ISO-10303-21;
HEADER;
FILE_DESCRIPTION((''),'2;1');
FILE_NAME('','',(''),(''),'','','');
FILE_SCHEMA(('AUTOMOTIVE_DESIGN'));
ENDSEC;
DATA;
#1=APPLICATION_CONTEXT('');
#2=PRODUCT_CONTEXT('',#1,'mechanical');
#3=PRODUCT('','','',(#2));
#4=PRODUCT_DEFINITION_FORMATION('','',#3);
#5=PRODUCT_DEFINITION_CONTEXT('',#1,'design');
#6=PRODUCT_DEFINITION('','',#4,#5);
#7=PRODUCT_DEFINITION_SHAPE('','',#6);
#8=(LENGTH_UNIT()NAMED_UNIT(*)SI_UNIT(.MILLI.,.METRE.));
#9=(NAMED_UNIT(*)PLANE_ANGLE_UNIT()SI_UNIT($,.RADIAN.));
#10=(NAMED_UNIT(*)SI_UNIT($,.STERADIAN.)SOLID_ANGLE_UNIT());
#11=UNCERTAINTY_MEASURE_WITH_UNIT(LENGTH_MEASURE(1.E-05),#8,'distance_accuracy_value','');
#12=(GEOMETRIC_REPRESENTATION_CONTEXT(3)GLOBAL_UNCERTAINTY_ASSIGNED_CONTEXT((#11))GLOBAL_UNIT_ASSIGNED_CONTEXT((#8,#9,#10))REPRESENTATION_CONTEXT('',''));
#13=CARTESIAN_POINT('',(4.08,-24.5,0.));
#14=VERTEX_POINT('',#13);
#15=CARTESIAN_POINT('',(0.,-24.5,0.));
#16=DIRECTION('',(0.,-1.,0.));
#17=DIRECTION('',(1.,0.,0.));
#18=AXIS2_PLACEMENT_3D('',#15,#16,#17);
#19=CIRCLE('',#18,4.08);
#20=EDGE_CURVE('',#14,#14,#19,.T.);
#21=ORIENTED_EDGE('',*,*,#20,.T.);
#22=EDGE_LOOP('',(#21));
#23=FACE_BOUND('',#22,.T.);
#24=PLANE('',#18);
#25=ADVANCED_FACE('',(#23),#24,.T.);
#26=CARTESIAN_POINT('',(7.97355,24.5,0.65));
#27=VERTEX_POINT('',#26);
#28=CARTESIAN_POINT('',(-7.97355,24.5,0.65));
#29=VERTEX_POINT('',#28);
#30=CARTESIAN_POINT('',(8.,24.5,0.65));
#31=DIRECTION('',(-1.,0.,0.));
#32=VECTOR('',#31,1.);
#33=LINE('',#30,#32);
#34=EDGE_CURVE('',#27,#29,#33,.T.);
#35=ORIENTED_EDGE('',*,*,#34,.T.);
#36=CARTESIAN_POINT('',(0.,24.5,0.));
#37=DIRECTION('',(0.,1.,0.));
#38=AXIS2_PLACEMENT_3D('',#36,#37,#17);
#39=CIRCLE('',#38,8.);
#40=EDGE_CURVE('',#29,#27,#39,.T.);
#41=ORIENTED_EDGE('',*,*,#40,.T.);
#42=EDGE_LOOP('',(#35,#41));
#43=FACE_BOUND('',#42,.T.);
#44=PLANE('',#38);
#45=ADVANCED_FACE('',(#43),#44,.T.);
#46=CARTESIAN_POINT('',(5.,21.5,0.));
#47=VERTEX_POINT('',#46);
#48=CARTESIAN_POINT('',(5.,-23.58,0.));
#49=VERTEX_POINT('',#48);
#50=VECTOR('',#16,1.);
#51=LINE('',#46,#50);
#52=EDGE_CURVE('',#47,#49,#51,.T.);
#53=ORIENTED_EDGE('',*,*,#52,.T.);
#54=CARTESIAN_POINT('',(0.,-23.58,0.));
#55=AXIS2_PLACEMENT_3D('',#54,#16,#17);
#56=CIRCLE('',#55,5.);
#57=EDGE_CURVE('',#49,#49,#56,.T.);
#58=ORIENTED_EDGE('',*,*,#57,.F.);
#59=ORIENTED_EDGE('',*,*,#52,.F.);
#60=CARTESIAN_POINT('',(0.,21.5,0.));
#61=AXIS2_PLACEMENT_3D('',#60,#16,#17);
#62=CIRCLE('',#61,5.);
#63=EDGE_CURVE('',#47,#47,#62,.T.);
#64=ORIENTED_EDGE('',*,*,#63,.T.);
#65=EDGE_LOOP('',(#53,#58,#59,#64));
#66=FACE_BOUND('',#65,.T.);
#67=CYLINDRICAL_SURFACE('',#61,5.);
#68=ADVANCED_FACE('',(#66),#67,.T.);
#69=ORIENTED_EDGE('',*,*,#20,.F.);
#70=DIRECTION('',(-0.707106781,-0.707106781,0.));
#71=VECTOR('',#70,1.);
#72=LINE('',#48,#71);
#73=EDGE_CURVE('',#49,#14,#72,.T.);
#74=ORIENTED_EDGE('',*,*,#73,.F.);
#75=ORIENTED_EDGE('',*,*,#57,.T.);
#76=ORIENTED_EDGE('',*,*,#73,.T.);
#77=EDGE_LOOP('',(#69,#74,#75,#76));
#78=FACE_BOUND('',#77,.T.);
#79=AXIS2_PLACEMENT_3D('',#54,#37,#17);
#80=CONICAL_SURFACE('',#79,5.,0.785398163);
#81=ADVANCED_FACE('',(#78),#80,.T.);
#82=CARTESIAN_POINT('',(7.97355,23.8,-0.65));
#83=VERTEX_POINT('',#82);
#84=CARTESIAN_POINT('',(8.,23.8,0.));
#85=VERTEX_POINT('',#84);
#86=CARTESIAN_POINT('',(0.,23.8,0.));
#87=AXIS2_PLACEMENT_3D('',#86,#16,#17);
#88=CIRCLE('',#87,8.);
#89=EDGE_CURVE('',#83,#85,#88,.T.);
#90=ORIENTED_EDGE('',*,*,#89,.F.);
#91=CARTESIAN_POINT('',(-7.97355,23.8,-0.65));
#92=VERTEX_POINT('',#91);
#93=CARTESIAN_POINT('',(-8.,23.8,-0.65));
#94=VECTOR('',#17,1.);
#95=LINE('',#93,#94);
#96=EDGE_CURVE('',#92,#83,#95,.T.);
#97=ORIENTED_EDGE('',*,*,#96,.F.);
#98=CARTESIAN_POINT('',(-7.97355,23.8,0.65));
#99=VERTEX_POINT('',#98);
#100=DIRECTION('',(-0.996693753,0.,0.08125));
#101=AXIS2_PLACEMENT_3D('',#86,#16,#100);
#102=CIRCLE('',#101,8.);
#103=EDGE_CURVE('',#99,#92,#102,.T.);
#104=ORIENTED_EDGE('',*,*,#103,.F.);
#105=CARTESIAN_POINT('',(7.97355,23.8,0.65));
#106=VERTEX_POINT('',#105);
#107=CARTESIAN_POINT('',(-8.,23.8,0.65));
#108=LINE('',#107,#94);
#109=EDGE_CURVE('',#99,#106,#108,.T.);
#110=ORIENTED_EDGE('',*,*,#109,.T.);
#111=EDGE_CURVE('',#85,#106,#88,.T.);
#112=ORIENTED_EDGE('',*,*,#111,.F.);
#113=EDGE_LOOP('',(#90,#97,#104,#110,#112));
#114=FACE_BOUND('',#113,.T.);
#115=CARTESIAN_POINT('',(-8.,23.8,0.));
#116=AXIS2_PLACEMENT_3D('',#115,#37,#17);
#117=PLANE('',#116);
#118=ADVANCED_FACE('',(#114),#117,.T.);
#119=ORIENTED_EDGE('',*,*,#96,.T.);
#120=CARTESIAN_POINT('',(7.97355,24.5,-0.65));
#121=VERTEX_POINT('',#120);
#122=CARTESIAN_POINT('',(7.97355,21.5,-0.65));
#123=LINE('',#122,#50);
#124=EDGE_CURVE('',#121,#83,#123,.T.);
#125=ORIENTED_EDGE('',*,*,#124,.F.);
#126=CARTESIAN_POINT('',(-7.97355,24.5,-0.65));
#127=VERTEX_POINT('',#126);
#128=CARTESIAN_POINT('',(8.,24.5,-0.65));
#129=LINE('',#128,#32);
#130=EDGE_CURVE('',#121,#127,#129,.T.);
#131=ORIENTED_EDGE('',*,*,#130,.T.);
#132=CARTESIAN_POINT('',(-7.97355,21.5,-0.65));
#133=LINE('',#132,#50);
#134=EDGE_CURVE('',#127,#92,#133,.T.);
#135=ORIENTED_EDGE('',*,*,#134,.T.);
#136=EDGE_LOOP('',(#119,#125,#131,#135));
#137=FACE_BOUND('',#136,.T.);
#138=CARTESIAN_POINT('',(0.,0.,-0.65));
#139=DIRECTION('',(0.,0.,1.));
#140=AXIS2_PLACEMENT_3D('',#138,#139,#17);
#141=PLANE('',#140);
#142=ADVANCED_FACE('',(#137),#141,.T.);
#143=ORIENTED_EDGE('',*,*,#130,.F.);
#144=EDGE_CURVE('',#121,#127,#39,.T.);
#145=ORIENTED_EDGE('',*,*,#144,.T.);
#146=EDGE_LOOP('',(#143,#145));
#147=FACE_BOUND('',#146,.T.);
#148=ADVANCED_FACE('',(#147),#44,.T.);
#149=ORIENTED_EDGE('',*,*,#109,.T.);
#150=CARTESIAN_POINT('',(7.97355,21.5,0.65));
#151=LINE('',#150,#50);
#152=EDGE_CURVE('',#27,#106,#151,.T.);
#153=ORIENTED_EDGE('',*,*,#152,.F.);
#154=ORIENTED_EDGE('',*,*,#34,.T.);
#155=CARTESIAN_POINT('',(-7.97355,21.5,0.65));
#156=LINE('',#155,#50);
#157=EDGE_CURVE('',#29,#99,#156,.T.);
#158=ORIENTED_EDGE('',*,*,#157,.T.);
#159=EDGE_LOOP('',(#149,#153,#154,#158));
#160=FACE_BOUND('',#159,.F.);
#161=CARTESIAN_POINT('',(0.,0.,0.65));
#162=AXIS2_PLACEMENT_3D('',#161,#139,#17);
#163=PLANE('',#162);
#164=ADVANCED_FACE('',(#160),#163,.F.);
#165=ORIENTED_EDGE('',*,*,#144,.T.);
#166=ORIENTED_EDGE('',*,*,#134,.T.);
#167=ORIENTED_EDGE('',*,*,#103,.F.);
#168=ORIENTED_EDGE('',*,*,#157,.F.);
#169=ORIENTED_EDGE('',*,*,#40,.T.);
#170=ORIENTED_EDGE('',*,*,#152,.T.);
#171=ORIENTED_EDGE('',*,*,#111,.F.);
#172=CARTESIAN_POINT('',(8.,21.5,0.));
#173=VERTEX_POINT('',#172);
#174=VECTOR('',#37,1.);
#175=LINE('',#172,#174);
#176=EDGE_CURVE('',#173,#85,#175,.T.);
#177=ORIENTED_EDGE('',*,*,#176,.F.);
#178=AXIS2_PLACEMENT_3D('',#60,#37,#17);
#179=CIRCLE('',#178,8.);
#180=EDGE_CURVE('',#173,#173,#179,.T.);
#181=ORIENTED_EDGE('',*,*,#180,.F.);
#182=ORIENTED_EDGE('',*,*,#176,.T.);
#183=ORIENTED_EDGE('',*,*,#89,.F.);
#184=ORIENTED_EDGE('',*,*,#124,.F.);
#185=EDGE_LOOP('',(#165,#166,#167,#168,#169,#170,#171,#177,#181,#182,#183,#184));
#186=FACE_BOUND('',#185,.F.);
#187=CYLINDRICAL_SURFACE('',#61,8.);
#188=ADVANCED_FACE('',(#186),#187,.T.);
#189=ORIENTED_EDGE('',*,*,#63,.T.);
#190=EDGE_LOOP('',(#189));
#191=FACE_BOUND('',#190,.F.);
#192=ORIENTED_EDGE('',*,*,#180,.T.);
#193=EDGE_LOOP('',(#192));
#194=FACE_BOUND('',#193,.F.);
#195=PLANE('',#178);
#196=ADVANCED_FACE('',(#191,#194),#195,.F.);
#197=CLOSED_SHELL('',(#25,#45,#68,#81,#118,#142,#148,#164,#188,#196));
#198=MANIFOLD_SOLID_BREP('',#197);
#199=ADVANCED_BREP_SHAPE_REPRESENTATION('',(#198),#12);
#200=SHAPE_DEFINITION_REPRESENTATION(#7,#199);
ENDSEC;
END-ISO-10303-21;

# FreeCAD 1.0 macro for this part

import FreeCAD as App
import Part
import Sketcher
Q = App.Units.Quantity

doc = App.newDocument("Part")
body = doc.addObject("PartDesign::Body", "Body")

# Sketch on XZ plane
sketch1 = doc.addObject("Sketcher::SketchObject", "Sketch")
body.addObject(sketch1)
sketch1.AttachmentSupport = (doc.XZ_Plane, [""])
sketch1.MapMode = "FlatFace"
sketch1.AttachmentOffset = App.Placement(App.Vector(0, 0, -21.5), App.Rotation())
sketch1.addGeometry(Part.Circle(App.Vector(0, 0, 0), App.Vector(0, 0, 1), 8), False)
sketch1.addConstraint(Sketcher.Constraint("Coincident", 0, 3, -1, 1))
sketch1.addConstraint(Sketcher.Constraint("Diameter", 0, 16.0))
pad1 = doc.addObject("PartDesign::Pad", "Pad")
body.addObject(pad1)
pad1.Profile = sketch1
pad1.Length = 3
pad1.Reversed = True

# Sketch on XY plane
sketch2 = doc.addObject("Sketcher::SketchObject", "Sketch001")
body.addObject(sketch2)
sketch2.AttachmentSupport = (doc.XY_Plane, [""])
sketch2.MapMode = "FlatFace"
sketch2.addGeometry(Part.LineSegment(App.Vector(8, 24.5, 0), App.Vector(-8, 24.5, 0)), False)
sketch2.addGeometry(Part.LineSegment(App.Vector(-8, 24.5, 0), App.Vector(-8, 23.8, 0)), False)
sketch2.addGeometry(Part.LineSegment(App.Vector(-8, 23.8, 0), App.Vector(8, 23.8, 0)), False)
sketch2.addGeometry(Part.LineSegment(App.Vector(8, 23.8, 0), App.Vector(8, 24.5, 0)), False)
sketch2.addConstraint(Sketcher.Constraint("Coincident", 0, 2, 1, 1))
sketch2.addConstraint(Sketcher.Constraint("Coincident", 1, 2, 2, 1))
sketch2.addConstraint(Sketcher.Constraint("Coincident", 2, 2, 3, 1))
sketch2.addConstraint(Sketcher.Constraint("Coincident", 3, 2, 0, 1))
sketch2.addConstraint(Sketcher.Constraint("Horizontal", 0))
sketch2.addConstraint(Sketcher.Constraint("Vertical", 1))
sketch2.addConstraint(Sketcher.Constraint("Horizontal", 2))
sketch2.addConstraint(Sketcher.Constraint("Vertical", 3))
sketch2.addConstraint(Sketcher.Constraint("DistanceX", 0, 2, 0, 1, 16.0))
sketch2.addConstraint(Sketcher.Constraint("DistanceY", 1, 2, 1, 1, 0.7))
sketch2.addConstraint(Sketcher.Constraint("DistanceX", 0, 2, -1, 1, 8.0))
sketch2.addConstraint(Sketcher.Constraint("DistanceY", -1, 1, 0, 2, 24.5))
pocket1 = doc.addObject("PartDesign::Pocket", "Pocket")
body.addObject(pocket1)
pocket1.Profile = sketch2
pocket1.Length = 1.3
pocket1.Midplane = True

# Sketch on XY plane
sketch3 = doc.addObject("Sketcher::SketchObject", "Sketch002")
body.addObject(sketch3)
sketch3.AttachmentSupport = (doc.XY_Plane, [""])
sketch3.MapMode = "FlatFace"
sketch3.addGeometry(Part.LineSegment(App.Vector(0, 21.5, 0), App.Vector(0, -24.5, 0)), False)
sketch3.addGeometry(Part.LineSegment(App.Vector(0, -24.5, 0), App.Vector(4.08, -24.5, 0)), False)
sketch3.addGeometry(Part.LineSegment(App.Vector(4.08, -24.5, 0), App.Vector(5, -23.58, 0)), False)
sketch3.addGeometry(Part.LineSegment(App.Vector(5, -23.58, 0), App.Vector(5, 21.5, 0)), False)
sketch3.addGeometry(Part.LineSegment(App.Vector(5, 21.5, 0), App.Vector(0, 21.5, 0)), False)
sketch3.addConstraint(Sketcher.Constraint("Coincident", 0, 2, 1, 1))
sketch3.addConstraint(Sketcher.Constraint("Coincident", 1, 2, 2, 1))
sketch3.addConstraint(Sketcher.Constraint("Coincident", 2, 2, 3, 1))
sketch3.addConstraint(Sketcher.Constraint("Coincident", 3, 2, 4, 1))
sketch3.addConstraint(Sketcher.Constraint("Coincident", 4, 2, 0, 1))
sketch3.addConstraint(Sketcher.Constraint("Vertical", 0))
sketch3.addConstraint(Sketcher.Constraint("Horizontal", 1))
sketch3.addConstraint(Sketcher.Constraint("Vertical", 3))
sketch3.addConstraint(Sketcher.Constraint("Horizontal", 4))
sketch3.addConstraint(Sketcher.Constraint("PointOnObject", 0, 2, -2))
sketch3.addConstraint(Sketcher.Constraint("DistanceX", 4, 2, 4, 1, 5.0))
sketch3.addConstraint(Sketcher.Constraint("DistanceY", 0, 2, 0, 1, 46.0))
sketch3.addConstraint(Sketcher.Constraint("Angle", 2, Q("45 deg")))
sketch3.addConstraint(Sketcher.Constraint("DistanceX", 1, 1, 1, 2, 4.08))
sketch3.addConstraint(Sketcher.Constraint("DistanceY", 0, 2, -1, 1, 24.5))
revolution = doc.addObject("PartDesign::Revolution", "Revolution")
body.addObject(revolution)
revolution.Profile = sketch3
revolution.ReferenceAxis = (sketch3, ["V_Axis"])
revolution.Angle = 360

doc.recompute()
